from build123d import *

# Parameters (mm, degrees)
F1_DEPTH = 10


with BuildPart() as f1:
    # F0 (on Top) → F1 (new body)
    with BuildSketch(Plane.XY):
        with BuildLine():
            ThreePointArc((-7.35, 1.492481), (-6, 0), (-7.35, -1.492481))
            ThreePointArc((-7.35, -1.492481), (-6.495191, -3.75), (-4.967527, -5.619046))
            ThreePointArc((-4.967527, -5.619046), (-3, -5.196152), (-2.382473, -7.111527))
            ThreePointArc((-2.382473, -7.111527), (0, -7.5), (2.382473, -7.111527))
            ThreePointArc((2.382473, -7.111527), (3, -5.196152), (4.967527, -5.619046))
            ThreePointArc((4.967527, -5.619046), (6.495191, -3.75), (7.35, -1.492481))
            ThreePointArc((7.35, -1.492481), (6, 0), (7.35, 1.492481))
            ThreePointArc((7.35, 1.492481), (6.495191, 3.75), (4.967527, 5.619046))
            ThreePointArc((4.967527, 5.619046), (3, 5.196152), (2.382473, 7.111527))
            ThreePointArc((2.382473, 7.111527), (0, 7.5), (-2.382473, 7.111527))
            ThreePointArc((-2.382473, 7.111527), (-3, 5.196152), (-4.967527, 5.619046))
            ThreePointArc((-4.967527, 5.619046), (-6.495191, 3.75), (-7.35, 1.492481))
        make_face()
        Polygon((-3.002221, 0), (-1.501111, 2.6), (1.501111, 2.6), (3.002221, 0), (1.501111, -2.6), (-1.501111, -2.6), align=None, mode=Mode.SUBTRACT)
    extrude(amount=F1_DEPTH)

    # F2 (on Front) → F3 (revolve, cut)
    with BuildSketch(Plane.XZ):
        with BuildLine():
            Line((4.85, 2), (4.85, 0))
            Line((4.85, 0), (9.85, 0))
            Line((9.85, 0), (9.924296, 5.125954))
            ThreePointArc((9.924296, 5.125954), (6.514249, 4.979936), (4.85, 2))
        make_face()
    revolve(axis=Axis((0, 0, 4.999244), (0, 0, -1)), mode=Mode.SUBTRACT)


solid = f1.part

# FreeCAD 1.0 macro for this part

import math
import FreeCAD as App
import Part
import Sketcher

V = App.Vector
Q = App.Units.Quantity


def add_polygon(sketch, points):
    """Adds a closed chain of lines whose ends are joined by coincident constraints."""
    first, n = sketch.GeometryCount, len(points)
    for a, b in zip(points, points[1:] + points[:1]):
        sketch.addGeometry(Part.LineSegment(App.Vector(*a, 0), App.Vector(*b, 0)), False)
    for i in range(n):
        sketch.addConstraint(Sketcher.Constraint("Coincident", first + i, 2, first + (i + 1) % n, 1))

doc = App.newDocument("Part")
body = doc.addObject("PartDesign::Body", "Body")

# Sketch on XY plane
sketch1 = body.newObject("Sketcher::SketchObject", "Sketch")
sketch1.AttachmentSupport = (doc.getObject("XY_Plane"), [""])
sketch1.MapMode = "FlatFace"
sketch1.addGeometry(Part.ArcOfCircle(Part.Circle(V(-7.5, 0, 0), V(0, 0, 1), 1.5), math.radians(-84), math.radians(84)), False)  # 0
sketch1.addGeometry(Part.ArcOfCircle(Part.Circle(V(0, 0, 0), V(0, 0, 1), 7.5), math.radians(-169), math.radians(-131)), False)  # 1
sketch1.addGeometry(Part.ArcOfCircle(Part.Circle(V(-3.8, -6.5, 0), V(0, 0, 1), 1.5), math.radians(-24), math.radians(144)), False)  # 2
sketch1.addGeometry(Part.ArcOfCircle(Part.Circle(V(0, 0, 0), V(0, 0, 1), 7.5), math.radians(-109), math.radians(-71)), False)  # 3
sketch1.addGeometry(Part.ArcOfCircle(Part.Circle(V(3.8, -6.5, 0), V(0, 0, 1), 1.5), math.radians(36), math.radians(204)), False)  # 4
sketch1.addGeometry(Part.ArcOfCircle(Part.Circle(V(0, 0, 0), V(0, 0, 1), 7.5), math.radians(-49), math.radians(-11)), False)  # 5
sketch1.addGeometry(Part.ArcOfCircle(Part.Circle(V(7.5, 0, 0), V(0, 0, 1), 1.5), math.radians(96), math.radians(264)), False)  # 6
sketch1.addGeometry(Part.ArcOfCircle(Part.Circle(V(0, 0, 0), V(0, 0, 1), 7.5), math.radians(11), math.radians(49)), False)  # 7
sketch1.addGeometry(Part.ArcOfCircle(Part.Circle(V(3.8, 6.5, 0), V(0, 0, 1), 1.5), math.radians(156), math.radians(324)), False)  # 8
sketch1.addGeometry(Part.ArcOfCircle(Part.Circle(V(0, 0, 0), V(0, 0, 1), 7.5), math.radians(71), math.radians(109)), False)  # 9
sketch1.addGeometry(Part.ArcOfCircle(Part.Circle(V(-3.8, 6.5, 0), V(0, 0, 1), 1.5), math.radians(-144), math.radians(24)), False)  # 10
sketch1.addGeometry(Part.ArcOfCircle(Part.Circle(V(0, 0, 0), V(0, 0, 1), 7.5), math.radians(131), math.radians(169)), False)  # 11
add_polygon(sketch1, [(-1.5, -2.6), (-3, 0), (-1.5, 2.6), (1.5, 2.6), (3, 0), (1.5, -2.6)])  # lines 12-17
sketch1.addConstraint([
    Sketcher.Constraint("Coincident", 0, 1, 1, 1),
    Sketcher.Constraint("Coincident", 1, 2, 2, 2),
    Sketcher.Constraint("Coincident", 2, 1, 3, 1),
    Sketcher.Constraint("Coincident", 3, 2, 4, 2),
    Sketcher.Constraint("Coincident", 4, 1, 5, 1),
    Sketcher.Constraint("Coincident", 5, 2, 6, 2),
    Sketcher.Constraint("Coincident", 6, 1, 7, 1),
    Sketcher.Constraint("Coincident", 7, 2, 8, 2),
    Sketcher.Constraint("Coincident", 8, 1, 9, 1),
    Sketcher.Constraint("Coincident", 9, 2, 10, 2),
    Sketcher.Constraint("Coincident", 10, 1, 11, 1),
    Sketcher.Constraint("Coincident", 11, 2, 0, 2),
    Sketcher.Constraint("Horizontal", 14),
    Sketcher.Constraint("Horizontal", 17),
    Sketcher.Constraint("Coincident", 1, 3, -1, 1),
    Sketcher.Constraint("Coincident", 3, 3, -1, 1),
    Sketcher.Constraint("Coincident", 5, 3, -1, 1),
    Sketcher.Constraint("Coincident", 7, 3, -1, 1),
    Sketcher.Constraint("Coincident", 9, 3, -1, 1),
    Sketcher.Constraint("Coincident", 11, 3, -1, 1),
    Sketcher.Constraint("Equal", 0, 2),
    Sketcher.Constraint("Equal", 1, 3),
    Sketcher.Constraint("Equal", 2, 4),
    Sketcher.Constraint("Equal", 3, 5),
    Sketcher.Constraint("Equal", 4, 6),
    Sketcher.Constraint("Equal", 5, 7),
    Sketcher.Constraint("Equal", 6, 8),
    Sketcher.Constraint("Equal", 7, 9),
    Sketcher.Constraint("Equal", 8, 10),
    Sketcher.Constraint("Equal", 9, 11),
    Sketcher.Constraint("Symmetric", 0, 3, 6, 3, -1, 1),
    Sketcher.Constraint("Symmetric", 2, 3, 8, 3, -1, 1),
    Sketcher.Constraint("Symmetric", 4, 3, 10, 3, -1, 1),
    Sketcher.Constraint("Symmetric", 12, 2, 15, 2, -1, 1),
    Sketcher.Constraint("Symmetric", 13, 2, 16, 2, -1, 1),
    Sketcher.Constraint("Symmetric", 2, 3, 4, 3, -2),
    Sketcher.Constraint("PointOnObject", 0, 3, -1),
    Sketcher.Constraint("PointOnObject", 12, 2, -1),
    Sketcher.Constraint("Parallel", 12, 15),
    Sketcher.Constraint("Vertical", 14, 2, 16, 2),
    Sketcher.Constraint("Radius", 0, Q("1.5 mm")),
    Sketcher.Constraint("Angle", 12, Q("119.999988 deg")),
    Sketcher.Constraint("DistanceX", 0, 3, -1, 1, Q("7.5 mm")),
    Sketcher.Constraint("DistanceY", -1, 1, 13, 2, Q("2.6 mm")),
    Sketcher.Constraint("DistanceX", 2, 3, 4, 3, Q("7.5 mm")),
    Sketcher.Constraint("DistanceX", 0, 1, 2, 3, Q("3.6 mm")),
    Sketcher.Constraint("DistanceY", 3, 3, 8, 3, Q("6.495198 mm")),
    Sketcher.Constraint("DistanceX", 14, 1, 14, 2, Q("3.002222 mm")),
])
pad1 = body.newObject("PartDesign::Pad", "Pad")
pad1.Profile = sketch1
pad1.Length = 10

# Sketch on XZ plane
sketch2 = body.newObject("Sketcher::SketchObject", "Sketch001")
sketch2.AttachmentSupport = (doc.getObject("XZ_Plane"), [""])
sketch2.MapMode = "FlatFace"
sketch2.addGeometry([
    Part.LineSegment(V(4.8, 2, 0), V(4.8, 0, 0)),
    Part.LineSegment(V(4.8, 0, 0), V(9.8, 0, 0)),
    Part.LineSegment(V(9.8, 0, 0), V(9.9, 5.1, 0)),
    Part.ArcOfCircle(Part.Circle(V(8.3, 2, 0), V(0, 0, 1), 3.5), math.radians(63), math.radians(180)),
], False)
sketch2.addConstraint([
    Sketcher.Constraint("Coincident", 0, 2, 1, 1),
    Sketcher.Constraint("Coincident", 1, 2, 2, 1),
    Sketcher.Constraint("Coincident", 2, 2, 3, 1),
    Sketcher.Constraint("Tangent", 3, 2, 0, 1),
    Sketcher.Constraint("Vertical", 0),
    Sketcher.Constraint("Horizontal", 1),
    Sketcher.Constraint("PointOnObject", 0, 2, -1),
    Sketcher.Constraint("Radius", 3, Q("3.499999 mm")),
    Sketcher.Constraint("DistanceX", 1, 1, 1, 2, Q("5 mm")),
    Sketcher.Constraint("DistanceY", 0, 2, 0, 1, Q("2 mm")),
    Sketcher.Constraint("DistanceX", -1, 1, 3, 3, Q("8.349999 mm")),
    Sketcher.Constraint("Distance", 2, Q("5.126492 mm")),
])
groove = body.newObject("PartDesign::Groove", "Groove")
groove.Profile = sketch2
groove.ReferenceAxis = (sketch2, ["V_Axis"])
groove.Angle = 360

doc.recompute()
